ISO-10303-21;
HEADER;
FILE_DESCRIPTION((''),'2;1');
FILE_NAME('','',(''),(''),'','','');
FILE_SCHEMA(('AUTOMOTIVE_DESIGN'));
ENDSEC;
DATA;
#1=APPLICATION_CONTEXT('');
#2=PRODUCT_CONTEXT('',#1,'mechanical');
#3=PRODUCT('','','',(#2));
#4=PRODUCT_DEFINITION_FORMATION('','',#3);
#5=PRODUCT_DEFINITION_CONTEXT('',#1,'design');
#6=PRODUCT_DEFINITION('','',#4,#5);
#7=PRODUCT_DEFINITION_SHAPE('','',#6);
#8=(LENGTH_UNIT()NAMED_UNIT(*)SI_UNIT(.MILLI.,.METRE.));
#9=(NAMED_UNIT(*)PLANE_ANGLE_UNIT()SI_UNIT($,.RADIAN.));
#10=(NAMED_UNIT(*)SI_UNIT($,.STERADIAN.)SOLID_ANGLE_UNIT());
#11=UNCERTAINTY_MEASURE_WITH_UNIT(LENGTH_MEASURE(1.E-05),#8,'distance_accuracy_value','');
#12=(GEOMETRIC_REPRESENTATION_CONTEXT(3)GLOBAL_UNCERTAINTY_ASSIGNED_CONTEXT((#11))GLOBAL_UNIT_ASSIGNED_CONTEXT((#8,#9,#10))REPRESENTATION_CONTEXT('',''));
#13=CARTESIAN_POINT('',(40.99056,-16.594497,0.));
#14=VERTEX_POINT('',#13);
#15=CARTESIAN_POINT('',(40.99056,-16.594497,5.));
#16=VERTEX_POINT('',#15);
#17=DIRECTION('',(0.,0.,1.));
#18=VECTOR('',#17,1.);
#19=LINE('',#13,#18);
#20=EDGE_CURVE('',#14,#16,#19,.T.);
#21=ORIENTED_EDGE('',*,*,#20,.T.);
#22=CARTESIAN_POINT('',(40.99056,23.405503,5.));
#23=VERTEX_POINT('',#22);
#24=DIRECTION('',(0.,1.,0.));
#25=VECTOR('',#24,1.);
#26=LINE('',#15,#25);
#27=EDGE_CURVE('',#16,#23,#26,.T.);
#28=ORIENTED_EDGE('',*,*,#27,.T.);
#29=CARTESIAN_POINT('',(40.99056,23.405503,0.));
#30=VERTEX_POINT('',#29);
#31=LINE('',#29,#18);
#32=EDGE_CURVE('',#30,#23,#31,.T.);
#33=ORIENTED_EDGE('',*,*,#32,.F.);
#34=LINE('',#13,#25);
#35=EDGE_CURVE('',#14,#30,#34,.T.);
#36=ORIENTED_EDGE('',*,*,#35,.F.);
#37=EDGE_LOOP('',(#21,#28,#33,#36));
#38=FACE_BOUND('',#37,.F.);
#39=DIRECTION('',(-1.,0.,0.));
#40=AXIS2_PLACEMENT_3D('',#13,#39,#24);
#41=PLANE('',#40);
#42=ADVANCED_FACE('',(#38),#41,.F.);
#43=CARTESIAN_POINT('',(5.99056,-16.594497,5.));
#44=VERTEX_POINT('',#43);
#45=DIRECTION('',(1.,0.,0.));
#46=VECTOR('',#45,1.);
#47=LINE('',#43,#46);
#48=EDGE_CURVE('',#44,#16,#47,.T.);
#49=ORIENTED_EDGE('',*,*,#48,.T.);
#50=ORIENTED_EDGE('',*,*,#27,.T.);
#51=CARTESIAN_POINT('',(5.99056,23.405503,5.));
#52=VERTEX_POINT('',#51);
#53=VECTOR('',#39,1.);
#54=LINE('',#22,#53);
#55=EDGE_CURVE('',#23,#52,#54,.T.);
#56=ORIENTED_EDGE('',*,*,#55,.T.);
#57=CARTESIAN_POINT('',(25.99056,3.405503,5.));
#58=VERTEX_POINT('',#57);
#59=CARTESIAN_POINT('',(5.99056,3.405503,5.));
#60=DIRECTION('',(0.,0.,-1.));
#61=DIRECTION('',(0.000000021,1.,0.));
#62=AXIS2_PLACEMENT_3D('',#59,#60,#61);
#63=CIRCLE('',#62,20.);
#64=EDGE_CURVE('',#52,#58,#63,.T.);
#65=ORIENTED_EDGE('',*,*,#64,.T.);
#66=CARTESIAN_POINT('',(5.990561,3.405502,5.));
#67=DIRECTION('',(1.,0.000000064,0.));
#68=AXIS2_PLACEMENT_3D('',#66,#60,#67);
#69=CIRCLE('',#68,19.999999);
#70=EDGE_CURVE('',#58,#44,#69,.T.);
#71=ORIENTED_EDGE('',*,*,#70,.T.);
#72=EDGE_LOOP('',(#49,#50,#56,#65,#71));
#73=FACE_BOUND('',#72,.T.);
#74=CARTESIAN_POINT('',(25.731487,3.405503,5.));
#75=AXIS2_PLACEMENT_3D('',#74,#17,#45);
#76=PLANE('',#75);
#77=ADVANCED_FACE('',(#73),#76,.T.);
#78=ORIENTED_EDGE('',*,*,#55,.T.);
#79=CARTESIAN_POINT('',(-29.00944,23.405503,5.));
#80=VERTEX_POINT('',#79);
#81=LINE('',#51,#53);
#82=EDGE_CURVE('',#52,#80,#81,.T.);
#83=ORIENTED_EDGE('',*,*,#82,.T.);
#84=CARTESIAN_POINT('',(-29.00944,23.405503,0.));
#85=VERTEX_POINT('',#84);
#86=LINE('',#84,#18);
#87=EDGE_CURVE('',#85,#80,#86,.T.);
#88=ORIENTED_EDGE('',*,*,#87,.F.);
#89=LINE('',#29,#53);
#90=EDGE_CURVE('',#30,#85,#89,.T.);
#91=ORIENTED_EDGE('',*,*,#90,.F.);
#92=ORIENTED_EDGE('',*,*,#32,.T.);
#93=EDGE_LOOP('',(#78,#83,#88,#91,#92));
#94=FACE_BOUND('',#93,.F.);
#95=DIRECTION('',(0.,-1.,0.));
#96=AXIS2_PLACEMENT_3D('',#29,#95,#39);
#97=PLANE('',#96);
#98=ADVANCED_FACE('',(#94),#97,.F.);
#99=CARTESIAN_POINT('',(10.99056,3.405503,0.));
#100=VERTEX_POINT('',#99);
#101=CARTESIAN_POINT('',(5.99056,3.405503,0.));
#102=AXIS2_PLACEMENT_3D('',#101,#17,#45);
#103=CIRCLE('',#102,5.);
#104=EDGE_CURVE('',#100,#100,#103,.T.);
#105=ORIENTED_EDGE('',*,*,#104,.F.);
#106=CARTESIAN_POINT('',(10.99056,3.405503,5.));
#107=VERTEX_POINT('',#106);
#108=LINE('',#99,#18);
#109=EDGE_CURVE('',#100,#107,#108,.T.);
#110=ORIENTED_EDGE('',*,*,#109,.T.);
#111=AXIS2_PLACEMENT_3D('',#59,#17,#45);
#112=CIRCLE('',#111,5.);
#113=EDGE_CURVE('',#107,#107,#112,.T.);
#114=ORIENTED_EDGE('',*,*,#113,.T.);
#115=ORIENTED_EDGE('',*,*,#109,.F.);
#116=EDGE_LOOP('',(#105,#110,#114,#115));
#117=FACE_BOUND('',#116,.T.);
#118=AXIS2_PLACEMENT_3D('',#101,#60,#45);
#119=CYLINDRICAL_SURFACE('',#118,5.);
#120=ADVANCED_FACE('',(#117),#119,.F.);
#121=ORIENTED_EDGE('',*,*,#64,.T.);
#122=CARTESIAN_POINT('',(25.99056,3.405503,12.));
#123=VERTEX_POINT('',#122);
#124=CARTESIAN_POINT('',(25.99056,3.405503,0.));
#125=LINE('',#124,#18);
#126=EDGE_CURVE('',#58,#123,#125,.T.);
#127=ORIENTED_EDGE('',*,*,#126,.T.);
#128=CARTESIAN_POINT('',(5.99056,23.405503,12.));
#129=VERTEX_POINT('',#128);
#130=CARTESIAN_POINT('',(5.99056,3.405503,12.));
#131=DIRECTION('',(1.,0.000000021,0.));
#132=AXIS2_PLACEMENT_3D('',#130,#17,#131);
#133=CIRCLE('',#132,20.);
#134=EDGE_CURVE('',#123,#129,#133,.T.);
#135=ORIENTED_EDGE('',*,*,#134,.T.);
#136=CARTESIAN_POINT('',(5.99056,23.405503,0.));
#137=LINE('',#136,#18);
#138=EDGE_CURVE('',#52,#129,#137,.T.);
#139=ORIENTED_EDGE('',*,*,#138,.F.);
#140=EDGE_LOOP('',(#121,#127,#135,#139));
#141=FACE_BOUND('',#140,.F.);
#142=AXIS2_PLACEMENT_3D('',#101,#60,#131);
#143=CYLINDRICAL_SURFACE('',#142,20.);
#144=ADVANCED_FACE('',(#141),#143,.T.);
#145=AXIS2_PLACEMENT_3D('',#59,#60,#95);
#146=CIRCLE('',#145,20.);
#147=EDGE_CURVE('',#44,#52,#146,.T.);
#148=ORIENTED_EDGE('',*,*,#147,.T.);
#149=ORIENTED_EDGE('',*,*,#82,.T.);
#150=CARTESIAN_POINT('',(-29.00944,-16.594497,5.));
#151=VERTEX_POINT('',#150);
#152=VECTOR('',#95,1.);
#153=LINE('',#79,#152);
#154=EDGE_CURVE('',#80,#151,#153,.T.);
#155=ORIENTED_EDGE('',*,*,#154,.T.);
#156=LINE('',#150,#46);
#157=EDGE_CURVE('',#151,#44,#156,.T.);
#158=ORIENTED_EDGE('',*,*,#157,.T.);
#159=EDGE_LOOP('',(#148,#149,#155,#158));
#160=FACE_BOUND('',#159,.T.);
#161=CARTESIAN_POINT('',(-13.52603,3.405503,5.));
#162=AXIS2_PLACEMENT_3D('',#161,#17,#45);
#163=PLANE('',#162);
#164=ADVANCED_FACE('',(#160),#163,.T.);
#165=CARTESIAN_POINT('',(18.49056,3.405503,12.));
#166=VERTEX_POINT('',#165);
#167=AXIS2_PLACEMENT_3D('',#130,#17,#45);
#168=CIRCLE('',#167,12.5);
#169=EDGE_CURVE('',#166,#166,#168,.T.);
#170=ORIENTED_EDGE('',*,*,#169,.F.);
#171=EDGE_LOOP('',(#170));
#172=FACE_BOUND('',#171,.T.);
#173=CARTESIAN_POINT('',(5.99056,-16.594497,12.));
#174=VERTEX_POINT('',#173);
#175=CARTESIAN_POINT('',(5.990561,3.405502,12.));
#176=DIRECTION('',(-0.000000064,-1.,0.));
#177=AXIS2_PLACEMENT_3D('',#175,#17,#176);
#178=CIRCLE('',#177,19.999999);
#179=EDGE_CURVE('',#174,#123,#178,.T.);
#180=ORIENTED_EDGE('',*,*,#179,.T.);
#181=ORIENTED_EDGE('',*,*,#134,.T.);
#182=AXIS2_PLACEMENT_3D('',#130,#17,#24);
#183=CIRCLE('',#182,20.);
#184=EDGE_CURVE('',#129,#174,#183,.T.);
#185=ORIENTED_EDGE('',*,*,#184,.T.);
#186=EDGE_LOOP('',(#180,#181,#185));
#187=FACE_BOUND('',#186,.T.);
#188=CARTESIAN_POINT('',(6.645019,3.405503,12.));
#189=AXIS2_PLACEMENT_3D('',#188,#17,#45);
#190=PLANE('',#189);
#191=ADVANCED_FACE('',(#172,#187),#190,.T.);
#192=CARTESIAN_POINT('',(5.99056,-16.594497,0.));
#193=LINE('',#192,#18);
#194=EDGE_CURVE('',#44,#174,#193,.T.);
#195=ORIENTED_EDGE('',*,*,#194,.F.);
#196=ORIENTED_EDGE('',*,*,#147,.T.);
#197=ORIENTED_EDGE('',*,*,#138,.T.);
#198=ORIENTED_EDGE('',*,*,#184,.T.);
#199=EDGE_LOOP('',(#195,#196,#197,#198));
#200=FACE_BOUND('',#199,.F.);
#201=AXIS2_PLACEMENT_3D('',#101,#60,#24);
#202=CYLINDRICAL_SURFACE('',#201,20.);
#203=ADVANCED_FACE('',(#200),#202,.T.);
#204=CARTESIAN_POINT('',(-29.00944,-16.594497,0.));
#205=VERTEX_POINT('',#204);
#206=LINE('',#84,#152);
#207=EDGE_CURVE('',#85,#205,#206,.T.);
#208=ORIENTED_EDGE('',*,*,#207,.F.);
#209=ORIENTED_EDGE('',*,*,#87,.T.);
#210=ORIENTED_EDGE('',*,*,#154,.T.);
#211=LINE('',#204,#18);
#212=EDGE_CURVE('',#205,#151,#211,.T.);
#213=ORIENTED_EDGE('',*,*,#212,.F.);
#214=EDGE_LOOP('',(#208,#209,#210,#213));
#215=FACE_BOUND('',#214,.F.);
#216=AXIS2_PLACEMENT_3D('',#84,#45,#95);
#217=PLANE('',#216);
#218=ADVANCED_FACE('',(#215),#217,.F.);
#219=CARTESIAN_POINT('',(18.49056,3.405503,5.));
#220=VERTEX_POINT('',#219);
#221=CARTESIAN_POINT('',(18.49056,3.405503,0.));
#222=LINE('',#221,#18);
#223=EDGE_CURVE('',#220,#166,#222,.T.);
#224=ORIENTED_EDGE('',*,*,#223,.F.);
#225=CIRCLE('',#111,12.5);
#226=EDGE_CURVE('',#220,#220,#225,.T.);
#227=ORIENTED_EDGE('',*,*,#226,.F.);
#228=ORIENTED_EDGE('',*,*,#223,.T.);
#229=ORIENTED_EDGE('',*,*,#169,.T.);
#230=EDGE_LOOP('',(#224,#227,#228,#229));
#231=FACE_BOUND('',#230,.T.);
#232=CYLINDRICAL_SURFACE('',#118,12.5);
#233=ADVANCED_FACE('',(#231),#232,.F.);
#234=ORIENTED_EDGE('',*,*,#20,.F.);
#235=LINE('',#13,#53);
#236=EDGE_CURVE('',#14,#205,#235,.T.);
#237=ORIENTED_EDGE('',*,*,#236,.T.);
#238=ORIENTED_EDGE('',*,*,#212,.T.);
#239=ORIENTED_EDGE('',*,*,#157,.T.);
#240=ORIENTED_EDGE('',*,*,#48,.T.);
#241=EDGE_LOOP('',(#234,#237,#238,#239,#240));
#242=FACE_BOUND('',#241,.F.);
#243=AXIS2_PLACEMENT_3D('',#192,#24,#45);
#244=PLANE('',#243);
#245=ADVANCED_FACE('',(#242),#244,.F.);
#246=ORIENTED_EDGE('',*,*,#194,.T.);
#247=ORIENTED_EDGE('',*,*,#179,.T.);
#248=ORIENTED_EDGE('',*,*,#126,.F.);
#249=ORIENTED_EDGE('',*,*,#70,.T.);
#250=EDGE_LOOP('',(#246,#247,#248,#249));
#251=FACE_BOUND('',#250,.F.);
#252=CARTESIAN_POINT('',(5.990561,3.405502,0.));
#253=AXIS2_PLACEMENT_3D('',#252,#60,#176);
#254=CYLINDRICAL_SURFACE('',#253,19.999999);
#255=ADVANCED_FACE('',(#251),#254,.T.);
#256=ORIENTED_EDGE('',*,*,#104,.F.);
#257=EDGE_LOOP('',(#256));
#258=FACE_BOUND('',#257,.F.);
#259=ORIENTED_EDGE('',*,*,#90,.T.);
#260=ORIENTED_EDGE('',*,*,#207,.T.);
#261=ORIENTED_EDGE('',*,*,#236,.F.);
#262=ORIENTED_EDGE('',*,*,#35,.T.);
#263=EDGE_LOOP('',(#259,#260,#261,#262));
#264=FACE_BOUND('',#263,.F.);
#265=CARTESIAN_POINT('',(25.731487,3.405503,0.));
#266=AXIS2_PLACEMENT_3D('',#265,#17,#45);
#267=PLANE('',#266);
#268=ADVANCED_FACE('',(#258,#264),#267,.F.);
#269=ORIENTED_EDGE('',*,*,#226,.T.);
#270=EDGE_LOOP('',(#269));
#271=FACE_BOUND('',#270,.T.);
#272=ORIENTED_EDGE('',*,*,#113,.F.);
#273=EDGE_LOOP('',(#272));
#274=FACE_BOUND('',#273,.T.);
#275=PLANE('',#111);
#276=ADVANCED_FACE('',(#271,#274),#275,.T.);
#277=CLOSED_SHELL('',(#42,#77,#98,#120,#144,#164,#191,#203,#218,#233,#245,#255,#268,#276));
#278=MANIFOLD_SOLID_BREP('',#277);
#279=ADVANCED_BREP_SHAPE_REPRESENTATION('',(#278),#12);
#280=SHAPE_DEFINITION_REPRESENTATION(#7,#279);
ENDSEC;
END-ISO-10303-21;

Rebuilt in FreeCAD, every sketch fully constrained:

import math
import FreeCAD as App
import Part
import Sketcher

doc = App.newDocument("Part")
params = doc.addObject("Spreadsheet::Sheet", "Params")
for row, (alias, value) in enumerate([
    ("sketch1_diameter", "25 mm"),
    ("sketch1_diameter2", "10 mm"),
    ("pad1_length", "5 mm"),
    ("sketch2_diameter", "25 mm"),
    ("sketch2_radius", "20 mm"),
    ("pad2_length", "12 mm"),
    ("sketch3_radius", "20 mm"),
    ("sketch3_width", "35 mm"),
    ("pad3_length", "5 mm"),
], start=1):
    params.set(f"A{row}", alias)
    params.set(f"B{row}", "=" + value)
    params.setAlias(f"B{row}", alias)

body = doc.addObject("PartDesign::Body", "Body")

# Sketch on XY plane
sketch1 = doc.addObject("Sketcher::SketchObject", "Sketch")
body.addObject(sketch1)
sketch1.AttachmentSupport = (doc.XY_Plane, [""])
sketch1.MapMode = "FlatFace"
sketch1.addGeometry(Part.Circle(App.Vector(6, 3, 0), App.Vector(0, 0, 1), 12), False)
sketch1.addGeometry(Part.Circle(App.Vector(6, 3, 0), App.Vector(0, 0, 1), 5), False)
sketch1.addConstraint(Sketcher.Constraint("Coincident", 1, 3, 0, 3))
sketch1.addConstraint(Sketcher.Constraint("Diameter", 0, 25.0))
sketch1.addConstraint(Sketcher.Constraint("Diameter", 1, 10.0))
sketch1.addConstraint(Sketcher.Constraint("DistanceX", -1, 1, 0, 3, 5.99056))
sketch1.addConstraint(Sketcher.Constraint("DistanceY", -1, 1, 0, 3, 3.405503))
sketch1.setExpression("Constraints[1]", "Params.sketch1_diameter")
sketch1.setExpression("Constraints[2]", "Params.sketch1_diameter2")
pad1 = doc.addObject("PartDesign::Pad", "Pad")
body.addObject(pad1)
pad1.Profile = sketch1
pad1.setExpression("Length", "Params.pad1_length")

# Sketch on XY plane
sketch2 = doc.addObject("Sketcher::SketchObject", "Sketch001")
body.addObject(sketch2)
sketch2.AttachmentSupport = (doc.XY_Plane, [""])
sketch2.MapMode = "FlatFace"
sketch2.addGeometry(Part.ArcOfCircle(Part.Circle(App.Vector(6, 3, 0), App.Vector(0, 0, 1), 20), math.radians(0), math.radians(90)), False)
sketch2.addGeometry(Part.ArcOfCircle(Part.Circle(App.Vector(6, 3, 0), App.Vector(0, 0, 1), 20), math.radians(90), math.radians(270)), False)
sketch2.addGeometry(Part.ArcOfCircle(Part.Circle(App.Vector(6, 3, 0), App.Vector(0, 0, 1), 20), math.radians(-90), math.radians(0)), False)
sketch2.addGeometry(Part.Circle(App.Vector(6, 3, 0), App.Vector(0, 0, 1), 12), False)
sketch2.addConstraint(Sketcher.Constraint("Tangent", 0, 2, 1, 1))
sketch2.addConstraint(Sketcher.Constraint("Tangent", 1, 2, 2, 1))
sketch2.addConstraint(Sketcher.Constraint("Tangent", 2, 2, 0, 1))
sketch2.addConstraint(Sketcher.Constraint("Coincident", 3, 3, 0, 3))
sketch2.addConstraint(Sketcher.Constraint("Horizontal", 3, 3, 2, 2))
sketch2.addConstraint(Sketcher.Constraint("Vertical", 3, 3, 0, 2))
sketch2.addConstraint(Sketcher.Constraint("Vertical", 0, 2, 1, 2))
sketch2.addConstraint(Sketcher.Constraint("Diameter", 3, 25.0))
sketch2.addConstraint(Sketcher.Constraint("Radius", 0, 20.0))
sketch2.addConstraint(Sketcher.Constraint("DistanceY", -1, 1, 2, 3, 3.405502))
sketch2.addConstraint(Sketcher.Constraint("DistanceX", -1, 1, 0, 3, 5.99056))
sketch2.setExpression("Constraints[7]", "Params.sketch2_diameter")
sketch2.setExpression("Constraints[8]", "Params.sketch2_radius")
pad2 = doc.addObject("PartDesign::Pad", "Pad001")
body.addObject(pad2)
pad2.Profile = sketch2
pad2.setExpression("Length", "Params.pad2_length")

# Sketch on XY plane
sketch3 = doc.addObject("Sketcher::SketchObject", "Sketch002")
body.addObject(sketch3)
sketch3.AttachmentSupport = (doc.XY_Plane, [""])
sketch3.MapMode = "FlatFace"
sketch3.addGeometry(Part.LineSegment(App.Vector(41, 23, 0), App.Vector(6, 23, 0)), False)
sketch3.addGeometry(Part.ArcOfCircle(Part.Circle(App.Vector(6, 3, 0), App.Vector(0, 0, 1), 20), math.radians(0), math.radians(90)), False)
sketch3.addGeometry(Part.ArcOfCircle(Part.Circle(App.Vector(6, 3, 0), App.Vector(0, 0, 1), 20), math.radians(-90), math.radians(0)), False)
sketch3.addGeometry(Part.LineSegment(App.Vector(6, -17, 0), App.Vector(41, -17, 0)), False)
sketch3.addGeometry(Part.LineSegment(App.Vector(41, -17, 0), App.Vector(41, 23, 0)), False)
sketch3.addGeometry(Part.LineSegment(App.Vector(6, 23, 0), App.Vector(-29, 23, 0)), False)
sketch3.addGeometry(Part.LineSegment(App.Vector(-29, 23, 0), App.Vector(-29, -17, 0)), False)
sketch3.addGeometry(Part.LineSegment(App.Vector(-29, -17, 0), App.Vector(6, -17, 0)), False)
sketch3.addGeometry(Part.ArcOfCircle(Part.Circle(App.Vector(6, 3, 0), App.Vector(0, 0, 1), 20), math.radians(90), math.radians(270)), False)
sketch3.addConstraint(Sketcher.Constraint("Tangent", 0, 2, 1, 2))
sketch3.addConstraint(Sketcher.Constraint("Tangent", 1, 1, 2, 2))
sketch3.addConstraint(Sketcher.Constraint("Tangent", 2, 1, 3, 1))
sketch3.addConstraint(Sketcher.Constraint("Coincident", 3, 2, 4, 1))
sketch3.addConstraint(Sketcher.Constraint("Coincident", 4, 2, 0, 1))
sketch3.addConstraint(Sketcher.Constraint("Coincident", 5, 2, 6, 1))
sketch3.addConstraint(Sketcher.Constraint("Coincident", 6, 2, 7, 1))
sketch3.addConstraint(Sketcher.Constraint("Tangent", 7, 2, 8, 2))
sketch3.addConstraint(Sketcher.Constraint("Tangent", 8, 1, 5, 1))
sketch3.addConstraint(Sketcher.Constraint("Horizontal", 0))
sketch3.addConstraint(Sketcher.Constraint("Horizontal", 3))
sketch3.addConstraint(Sketcher.Constraint("Vertical", 4))
sketch3.addConstraint(Sketcher.Constraint("Horizontal", 5))
sketch3.addConstraint(Sketcher.Constraint("Vertical", 6))
sketch3.addConstraint(Sketcher.Constraint("Horizontal", 7))
sketch3.addConstraint(Sketcher.Constraint("Coincident", 8, 3, 1, 3))
sketch3.addConstraint(Sketcher.Constraint("Coincident", 7, 2, 2, 1))
sketch3.addConstraint(Sketcher.Constraint("Horizontal", 8, 3, 1, 1))
sketch3.addConstraint(Sketcher.Constraint("Equal", 3, 5))
sketch3.addConstraint(Sketcher.Constraint("Radius", 1, 20.0))
sketch3.addConstraint(Sketcher.Constraint("DistanceX", 0, 2, 0, 1, 35.0))
sketch3.addConstraint(Sketcher.Constraint("DistanceY", -1, 1, 2, 3, 3.405502))
sketch3.addConstraint(Sketcher.Constraint("DistanceX", -1, 1, 1, 3, 5.99056))
sketch3.setExpression("Constraints[19]", "Params.sketch3_radius")
sketch3.setExpression("Constraints[20]", "Params.sketch3_width")
pad3 = doc.addObject("PartDesign::Pad", "Pad002")
body.addObject(pad3)
pad3.Profile = sketch3
pad3.setExpression("Length", "Params.pad3_length")

doc.recompute()
